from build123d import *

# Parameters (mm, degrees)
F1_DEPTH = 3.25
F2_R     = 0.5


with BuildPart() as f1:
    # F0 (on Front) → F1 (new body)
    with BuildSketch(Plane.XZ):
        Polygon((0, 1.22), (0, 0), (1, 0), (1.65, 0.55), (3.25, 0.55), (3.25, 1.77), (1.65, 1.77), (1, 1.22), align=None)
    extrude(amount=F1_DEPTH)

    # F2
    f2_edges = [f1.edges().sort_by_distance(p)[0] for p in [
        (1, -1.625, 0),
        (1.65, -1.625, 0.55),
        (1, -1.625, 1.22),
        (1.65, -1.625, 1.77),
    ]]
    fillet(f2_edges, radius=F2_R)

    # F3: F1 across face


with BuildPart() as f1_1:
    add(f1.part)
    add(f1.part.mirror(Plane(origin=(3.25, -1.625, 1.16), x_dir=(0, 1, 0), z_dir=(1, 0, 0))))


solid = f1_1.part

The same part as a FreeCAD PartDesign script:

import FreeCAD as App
import Part
import Sketcher
from FreeCAD import Vector


def edges_at(feature, points):
    """Names of the edges that pass closest to the given points."""
    edges = feature.Shape.Edges
    near = lambda p: min(range(len(edges)), key=lambda i: edges[i].distToShape(Part.Vertex(*p))[0])
    return sorted({f"Edge{near(p) + 1}" for p in points})


def add_polygon(sketch, points):
    """Adds a closed chain of lines whose ends are joined by coincident constraints."""
    first, n = sketch.GeometryCount, len(points)
    for a, b in zip(points, points[1:] + points[:1]):
        sketch.addGeometry(Part.LineSegment(App.Vector(*a, 0), App.Vector(*b, 0)), False)
    for i in range(n):
        sketch.addConstraint(Sketcher.Constraint("Coincident", first + i, 2, first + (i + 1) % n, 1))

doc = App.newDocument("Part")
body = doc.addObject("PartDesign::Body", "Body")

# Sketch on XZ plane
sketch1 = body.newObject("Sketcher::SketchObject", "Sketch")
sketch1.AttachmentSupport = (doc.getObject("XZ_Plane"), [""])
sketch1.MapMode = "FlatFace"
add_polygon(sketch1, [(0, 1.22), (0, 0), (1, 0), (1.65, 0.55), (3.25, 0.55), (3.25, 1.77), (1.65, 1.77), (1, 1.22)])  # lines 0-7
sketch1.addConstraint(Sketcher.Constraint("Vertical", 0))
sketch1.addConstraint(Sketcher.Constraint("Horizontal", 1))
sketch1.addConstraint(Sketcher.Constraint("Horizontal", 3))
sketch1.addConstraint(Sketcher.Constraint("Vertical", 4))
sketch1.addConstraint(Sketcher.Constraint("Horizontal", 5))
sketch1.addConstraint(Sketcher.Constraint("Horizontal", 7))
sketch1.addConstraint(Sketcher.Constraint("Coincident", 0, 2, -1, 1))
sketch1.addConstraint(Sketcher.Constraint("Parallel", 2, 6))
sketch1.addConstraint(Sketcher.Constraint("Vertical", 2, 2, 5, 2))
sketch1.addConstraint(Sketcher.Constraint("Vertical", 1, 2, 6, 2))
sketch1.addConstraint(Sketcher.Constraint("DistanceX", 1, 1, 1, 2, 1.0))
sketch1.addConstraint(Sketcher.Constraint("DistanceX", 3, 1, 3, 2, 1.6))
sketch1.addConstraint(Sketcher.Constraint("DistanceY", 0, 2, 0, 1, 1.22))
sketch1.addConstraint(Sketcher.Constraint("DistanceX", -1, 1, 2, 2, 1.65))
sketch1.addConstraint(Sketcher.Constraint("DistanceY", -1, 1, 2, 2, 0.55))
pad1 = body.newObject("PartDesign::Pad", "Pad")
pad1.Profile = sketch1
pad1.Length = 3.25
doc.recompute()

fillet = body.newObject("PartDesign::Fillet", "Fillet")
fillet.Base = (pad1, edges_at(pad1, [
    (1, -1.625, 0),
    (1.65, -1.625, 0.55),
    (1, -1.625, 1.22),
    (1.65, -1.625, 1.77),
]))
fillet.Radius = 0.5
body2 = doc.addObject("PartDesign::Body", "Body001")
doc.recompute()

body2.BaseFeature = body
doc.recompute()

mirroring = doc.addObject("Part::Mirroring", "Mirroring")
mirroring.Source = body
mirroring.Base = Vector(3.25, -1.625, 1.16)
mirroring.Normal = Vector(1, 0, 0)
body3 = doc.addObject("PartDesign::Body", "Body002")
body3.BaseFeature = mirroring
boolean = body2.newObject("PartDesign::Boolean", "Boolean")
boolean.Type = "Fuse"
boolean.addObjects([body3])
doc.recompute()
mirroring.Visibility = False

doc.recompute()
